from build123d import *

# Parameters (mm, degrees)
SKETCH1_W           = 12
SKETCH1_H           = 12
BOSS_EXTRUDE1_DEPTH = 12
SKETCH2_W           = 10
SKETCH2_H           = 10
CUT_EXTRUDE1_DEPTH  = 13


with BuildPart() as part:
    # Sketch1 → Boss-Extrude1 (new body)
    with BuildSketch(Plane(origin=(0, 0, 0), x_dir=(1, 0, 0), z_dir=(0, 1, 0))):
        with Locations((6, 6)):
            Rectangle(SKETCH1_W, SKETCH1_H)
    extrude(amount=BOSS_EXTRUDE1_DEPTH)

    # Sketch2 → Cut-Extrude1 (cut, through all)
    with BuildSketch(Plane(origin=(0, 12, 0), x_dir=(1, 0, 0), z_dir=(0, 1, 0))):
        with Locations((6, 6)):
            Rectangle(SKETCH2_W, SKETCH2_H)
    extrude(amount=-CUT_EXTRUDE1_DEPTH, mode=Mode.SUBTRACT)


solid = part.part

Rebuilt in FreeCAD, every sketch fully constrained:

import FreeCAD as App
import Part
import Sketcher

V = App.Vector

doc = App.newDocument("Part")
params = doc.addObject("Spreadsheet::Sheet", "Params")
for row, (alias, value) in enumerate([
    ("sketch1_width", "12 mm"),
    ("pad1_length", "12 mm"),
    ("sketch2_width", "10 mm"),
], start=1):
    params.set(f"A{row}", alias)
    params.set(f"B{row}", "=" + value)
    params.setAlias(f"B{row}", alias)

body = doc.addObject("PartDesign::Body", "Body")

# Sketch on XZ plane
sketch1 = body.newObject("Sketcher::SketchObject", "Sketch")
sketch1.AttachmentSupport = (doc.getObject("XZ_Plane"), [""])
sketch1.MapMode = "FlatFace"
sketch1.addGeometry(Part.LineSegment(V(0, -12, 0), V(0, 0, 0)), False)
sketch1.addGeometry(Part.LineSegment(V(0, 0, 0), V(12, 0, 0)), False)
sketch1.addGeometry(Part.LineSegment(V(12, 0, 0), V(12, -12, 0)), False)
sketch1.addGeometry(Part.LineSegment(V(12, -12, 0), V(0, -12, 0)), False)
sketch1.addConstraint(Sketcher.Constraint("Coincident", 0, 2, 1, 1))
sketch1.addConstraint(Sketcher.Constraint("Coincident", 1, 2, 2, 1))
sketch1.addConstraint(Sketcher.Constraint("Coincident", 2, 2, 3, 1))
sketch1.addConstraint(Sketcher.Constraint("Coincident", 3, 2, 0, 1))
sketch1.addConstraint(Sketcher.Constraint("Vertical", 0))
sketch1.addConstraint(Sketcher.Constraint("Horizontal", 1))
sketch1.addConstraint(Sketcher.Constraint("Vertical", 2))
sketch1.addConstraint(Sketcher.Constraint("Horizontal", 3))
sketch1.addConstraint(Sketcher.Constraint("Coincident", 0, 2, -1, 1))
sketch1.addConstraint(Sketcher.Constraint("Equal", 3, 0))
sketch1.addConstraint(Sketcher.Constraint("DistanceX", 1, 1, 1, 2, 12.0))
sketch1.setExpression("Constraints[10]", "Params.sketch1_width")
pad1 = body.newObject("PartDesign::Pad", "Pad")
pad1.Profile = sketch1
pad1.setExpression("Length", "Params.pad1_length")
pad1.Reversed = True

# Sketch on XZ plane
sketch2 = body.newObject("Sketcher::SketchObject", "Sketch001")
sketch2.AttachmentSupport = (doc.getObject("XZ_Plane"), [""])
sketch2.MapMode = "FlatFace"
sketch2.AttachmentOffset = App.Placement(V(0, 0, -12), App.Rotation())
sketch2.addGeometry(Part.LineSegment(V(1, -11, 0), V(1, -1, 0)), False)
sketch2.addGeometry(Part.LineSegment(V(1, -1, 0), V(11, -1, 0)), False)
sketch2.addGeometry(Part.LineSegment(V(11, -1, 0), V(11, -11, 0)), False)
sketch2.addGeometry(Part.LineSegment(V(11, -11, 0), V(1, -11, 0)), False)
sketch2.addConstraint(Sketcher.Constraint("Coincident", 0, 2, 1, 1))
sketch2.addConstraint(Sketcher.Constraint("Coincident", 1, 2, 2, 1))
sketch2.addConstraint(Sketcher.Constraint("Coincident", 2, 2, 3, 1))
sketch2.addConstraint(Sketcher.Constraint("Coincident", 3, 2, 0, 1))
sketch2.addConstraint(Sketcher.Constraint("Vertical", 0))
sketch2.addConstraint(Sketcher.Constraint("Horizontal", 1))
sketch2.addConstraint(Sketcher.Constraint("Vertical", 2))
sketch2.addConstraint(Sketcher.Constraint("Horizontal", 3))
sketch2.addConstraint(Sketcher.Constraint("Equal", 3, 0))
sketch2.addConstraint(Sketcher.Constraint("DistanceX", 1, 1, 1, 2, 10.0))
sketch2.addConstraint(Sketcher.Constraint("DistanceX", -1, 1, 0, 2, 1.0))
sketch2.addConstraint(Sketcher.Constraint("DistanceY", 0, 2, -1, 1, 1.0))
sketch2.setExpression("Constraints[9]", "Params.sketch2_width")
pocket1 = body.newObject("PartDesign::Pocket", "Pocket")
pocket1.Profile = sketch2
pocket1.Type = "ThroughAll"
pocket1.Reversed = True

doc.recompute()
